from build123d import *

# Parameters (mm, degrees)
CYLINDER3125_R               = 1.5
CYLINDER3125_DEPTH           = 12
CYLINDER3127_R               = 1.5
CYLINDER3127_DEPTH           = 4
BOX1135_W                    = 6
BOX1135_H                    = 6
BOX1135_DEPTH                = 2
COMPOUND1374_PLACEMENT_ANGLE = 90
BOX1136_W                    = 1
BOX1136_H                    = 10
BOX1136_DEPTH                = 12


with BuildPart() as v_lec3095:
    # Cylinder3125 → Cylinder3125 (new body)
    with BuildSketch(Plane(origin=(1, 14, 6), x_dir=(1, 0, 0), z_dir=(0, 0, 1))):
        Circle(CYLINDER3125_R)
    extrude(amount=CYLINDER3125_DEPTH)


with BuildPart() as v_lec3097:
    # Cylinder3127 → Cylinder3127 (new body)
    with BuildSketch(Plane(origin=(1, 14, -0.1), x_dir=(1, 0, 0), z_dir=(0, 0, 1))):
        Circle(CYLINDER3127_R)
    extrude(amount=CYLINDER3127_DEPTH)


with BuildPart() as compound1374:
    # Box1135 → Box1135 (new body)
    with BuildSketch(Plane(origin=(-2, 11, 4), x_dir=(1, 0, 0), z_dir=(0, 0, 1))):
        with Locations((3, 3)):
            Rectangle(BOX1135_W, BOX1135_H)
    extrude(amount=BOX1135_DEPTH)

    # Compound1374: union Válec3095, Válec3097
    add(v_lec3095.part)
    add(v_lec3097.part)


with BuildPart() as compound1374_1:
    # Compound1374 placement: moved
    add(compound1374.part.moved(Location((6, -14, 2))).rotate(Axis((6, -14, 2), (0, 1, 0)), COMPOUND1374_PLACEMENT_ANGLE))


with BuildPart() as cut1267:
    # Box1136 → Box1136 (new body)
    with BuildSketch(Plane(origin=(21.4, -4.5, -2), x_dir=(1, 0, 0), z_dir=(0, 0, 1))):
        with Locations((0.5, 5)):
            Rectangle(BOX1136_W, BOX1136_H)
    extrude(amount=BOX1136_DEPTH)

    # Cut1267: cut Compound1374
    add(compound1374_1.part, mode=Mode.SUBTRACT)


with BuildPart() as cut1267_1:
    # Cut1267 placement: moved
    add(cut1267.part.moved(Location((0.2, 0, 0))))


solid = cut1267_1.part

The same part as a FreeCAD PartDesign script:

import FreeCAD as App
import Part
import Sketcher

V = App.Vector
Q = App.Units.Quantity

doc = App.newDocument("Part")
body = doc.addObject("PartDesign::Body", "Body")

sketch1 = doc.addObject("Sketcher::SketchObject", "Sketch")
body.addObject(sketch1)
sketch1.AttachmentSupport = (doc.XY_Plane, [""])
sketch1.MapMode = "FlatFace"
sketch1.AttachmentOffset = App.Placement(V(0, 0, 6), App.Rotation())
sketch1.addGeometry(Part.Circle(V(1, 14, 0), V(0, 0, 1), 1.5), False)
sketch1.addConstraint([
    Sketcher.Constraint("Diameter", 0, Q("3 mm")),
    Sketcher.Constraint("DistanceX", -1, 1, 0, 3, Q("1 mm")),
    Sketcher.Constraint("DistanceY", -1, 1, 0, 3, Q("14 mm")),
])
pad1 = doc.addObject("PartDesign::Pad", "Pad")
body.addObject(pad1)
pad1.Profile = sketch1
pad1.Length = 12
body2 = doc.addObject("PartDesign::Body", "Body001")

sketch2 = doc.addObject("Sketcher::SketchObject", "Sketch001")
body2.addObject(sketch2)
sketch2.AttachmentSupport = (doc.getObject("XY_Plane001"), [""])
sketch2.MapMode = "FlatFace"
sketch2.AttachmentOffset = App.Placement(V(0, 0, -0.1), App.Rotation())
sketch2.addGeometry(Part.Circle(V(1, 14, 0), V(0, 0, 1), 1.5), False)
sketch2.addConstraint([
    Sketcher.Constraint("Diameter", 0, Q("3 mm")),
    Sketcher.Constraint("DistanceX", -1, 1, 0, 3, Q("1 mm")),
    Sketcher.Constraint("DistanceY", -1, 1, 0, 3, Q("14 mm")),
])
pad2 = doc.addObject("PartDesign::Pad", "Pad001")
body2.addObject(pad2)
pad2.Profile = sketch2
pad2.Length = 4
body3 = doc.addObject("PartDesign::Body", "Body002")
body3.AllowCompound = True

sketch3 = doc.addObject("Sketcher::SketchObject", "Sketch002")
body3.addObject(sketch3)
sketch3.AttachmentSupport = (doc.getObject("XY_Plane002"), [""])
sketch3.MapMode = "FlatFace"
sketch3.AttachmentOffset = App.Placement(V(0, 0, 4), App.Rotation())
sketch3.addGeometry([
    Part.LineSegment(V(-2, 17, 0), V(-2, 11, 0)),
    Part.LineSegment(V(-2, 11, 0), V(4, 11, 0)),
    Part.LineSegment(V(4, 11, 0), V(4, 17, 0)),
    Part.LineSegment(V(4, 17, 0), V(-2, 17, 0)),
], False)
sketch3.addConstraint([
    Sketcher.Constraint("Coincident", 0, 2, 1, 1),
    Sketcher.Constraint("Coincident", 1, 2, 2, 1),
    Sketcher.Constraint("Coincident", 2, 2, 3, 1),
    Sketcher.Constraint("Coincident", 3, 2, 0, 1),
    Sketcher.Constraint("Vertical", 0),
    Sketcher.Constraint("Horizontal", 1),
    Sketcher.Constraint("Vertical", 2),
    Sketcher.Constraint("Horizontal", 3),
    Sketcher.Constraint("Equal", 3, 0),
    Sketcher.Constraint("DistanceX", 1, 1, 1, 2, Q("6 mm")),
    Sketcher.Constraint("DistanceX", 0, 2, -1, 1, Q("2 mm")),
    Sketcher.Constraint("DistanceY", -1, 1, 0, 2, Q("11 mm")),
])
pad3 = doc.addObject("PartDesign::Pad", "Pad002")
body3.addObject(pad3)
pad3.Profile = sketch3
pad3.Length = 2
doc.recompute()

boolean = doc.addObject("PartDesign::Boolean", "Boolean")
body3.addObject(boolean)
boolean.Type = "Fuse"
boolean.addObjects([body])
doc.recompute()

boolean2 = doc.addObject("PartDesign::Boolean", "Boolean001")
body3.addObject(boolean2)
boolean2.Type = "Fuse"
boolean2.addObjects([body2])
body4 = doc.addObject("PartDesign::Body", "Body003")
body4.AllowCompound = True
doc.recompute()

body3.Placement = App.Placement(V(6, -14, 2), App.Rotation(V(0, 1, 0), 90))
boolean3 = doc.addObject("PartDesign::Boolean", "Boolean002")
body4.addObject(boolean3)
boolean3.Type = "Fuse"
boolean3.addObjects([body3])
body5 = doc.addObject("PartDesign::Body", "Body004")

sketch4 = doc.addObject("Sketcher::SketchObject", "Sketch003")
body5.addObject(sketch4)
sketch4.AttachmentSupport = (doc.getObject("XY_Plane004"), [""])
sketch4.MapMode = "FlatFace"
sketch4.AttachmentOffset = App.Placement(V(0, 0, -2), App.Rotation())
sketch4.addGeometry([
    Part.LineSegment(V(21.4, 5.5, 0), V(21.4, -4.5, 0)),
    Part.LineSegment(V(21.4, -4.5, 0), V(22.4, -4.5, 0)),
    Part.LineSegment(V(22.4, -4.5, 0), V(22.4, 5.5, 0)),
    Part.LineSegment(V(22.4, 5.5, 0), V(21.4, 5.5, 0)),
], False)
sketch4.addConstraint([
    Sketcher.Constraint("Coincident", 0, 2, 1, 1),
    Sketcher.Constraint("Coincident", 1, 2, 2, 1),
    Sketcher.Constraint("Coincident", 2, 2, 3, 1),
    Sketcher.Constraint("Coincident", 3, 2, 0, 1),
    Sketcher.Constraint("Vertical", 0),
    Sketcher.Constraint("Horizontal", 1),
    Sketcher.Constraint("Vertical", 2),
    Sketcher.Constraint("Horizontal", 3),
    Sketcher.Constraint("DistanceX", 1, 1, 1, 2, Q("1 mm")),
    Sketcher.Constraint("DistanceY", 0, 2, 0, 1, Q("10 mm")),
    Sketcher.Constraint("DistanceX", -1, 1, 0, 2, Q("21.4 mm")),
    Sketcher.Constraint("DistanceY", 0, 2, -1, 1, Q("4.5 mm")),
])
pad4 = doc.addObject("PartDesign::Pad", "Pad003")
body5.addObject(pad4)
pad4.Profile = sketch4
pad4.Length = 12
doc.recompute()

boolean4 = doc.addObject("PartDesign::Boolean", "Boolean003")
body5.addObject(boolean4)
boolean4.Type = "Cut"
boolean4.addObjects([body4])
body6 = doc.addObject("PartDesign::Body", "Body005")
doc.recompute()

body5.Placement = App.Placement(V(0.2, 0, 0), App.Rotation(V(0, 0, 1), 0))
boolean5 = doc.addObject("PartDesign::Boolean", "Boolean004")
body6.addObject(boolean5)
boolean5.Type = "Fuse"
boolean5.addObjects([body5])

doc.recompute()
